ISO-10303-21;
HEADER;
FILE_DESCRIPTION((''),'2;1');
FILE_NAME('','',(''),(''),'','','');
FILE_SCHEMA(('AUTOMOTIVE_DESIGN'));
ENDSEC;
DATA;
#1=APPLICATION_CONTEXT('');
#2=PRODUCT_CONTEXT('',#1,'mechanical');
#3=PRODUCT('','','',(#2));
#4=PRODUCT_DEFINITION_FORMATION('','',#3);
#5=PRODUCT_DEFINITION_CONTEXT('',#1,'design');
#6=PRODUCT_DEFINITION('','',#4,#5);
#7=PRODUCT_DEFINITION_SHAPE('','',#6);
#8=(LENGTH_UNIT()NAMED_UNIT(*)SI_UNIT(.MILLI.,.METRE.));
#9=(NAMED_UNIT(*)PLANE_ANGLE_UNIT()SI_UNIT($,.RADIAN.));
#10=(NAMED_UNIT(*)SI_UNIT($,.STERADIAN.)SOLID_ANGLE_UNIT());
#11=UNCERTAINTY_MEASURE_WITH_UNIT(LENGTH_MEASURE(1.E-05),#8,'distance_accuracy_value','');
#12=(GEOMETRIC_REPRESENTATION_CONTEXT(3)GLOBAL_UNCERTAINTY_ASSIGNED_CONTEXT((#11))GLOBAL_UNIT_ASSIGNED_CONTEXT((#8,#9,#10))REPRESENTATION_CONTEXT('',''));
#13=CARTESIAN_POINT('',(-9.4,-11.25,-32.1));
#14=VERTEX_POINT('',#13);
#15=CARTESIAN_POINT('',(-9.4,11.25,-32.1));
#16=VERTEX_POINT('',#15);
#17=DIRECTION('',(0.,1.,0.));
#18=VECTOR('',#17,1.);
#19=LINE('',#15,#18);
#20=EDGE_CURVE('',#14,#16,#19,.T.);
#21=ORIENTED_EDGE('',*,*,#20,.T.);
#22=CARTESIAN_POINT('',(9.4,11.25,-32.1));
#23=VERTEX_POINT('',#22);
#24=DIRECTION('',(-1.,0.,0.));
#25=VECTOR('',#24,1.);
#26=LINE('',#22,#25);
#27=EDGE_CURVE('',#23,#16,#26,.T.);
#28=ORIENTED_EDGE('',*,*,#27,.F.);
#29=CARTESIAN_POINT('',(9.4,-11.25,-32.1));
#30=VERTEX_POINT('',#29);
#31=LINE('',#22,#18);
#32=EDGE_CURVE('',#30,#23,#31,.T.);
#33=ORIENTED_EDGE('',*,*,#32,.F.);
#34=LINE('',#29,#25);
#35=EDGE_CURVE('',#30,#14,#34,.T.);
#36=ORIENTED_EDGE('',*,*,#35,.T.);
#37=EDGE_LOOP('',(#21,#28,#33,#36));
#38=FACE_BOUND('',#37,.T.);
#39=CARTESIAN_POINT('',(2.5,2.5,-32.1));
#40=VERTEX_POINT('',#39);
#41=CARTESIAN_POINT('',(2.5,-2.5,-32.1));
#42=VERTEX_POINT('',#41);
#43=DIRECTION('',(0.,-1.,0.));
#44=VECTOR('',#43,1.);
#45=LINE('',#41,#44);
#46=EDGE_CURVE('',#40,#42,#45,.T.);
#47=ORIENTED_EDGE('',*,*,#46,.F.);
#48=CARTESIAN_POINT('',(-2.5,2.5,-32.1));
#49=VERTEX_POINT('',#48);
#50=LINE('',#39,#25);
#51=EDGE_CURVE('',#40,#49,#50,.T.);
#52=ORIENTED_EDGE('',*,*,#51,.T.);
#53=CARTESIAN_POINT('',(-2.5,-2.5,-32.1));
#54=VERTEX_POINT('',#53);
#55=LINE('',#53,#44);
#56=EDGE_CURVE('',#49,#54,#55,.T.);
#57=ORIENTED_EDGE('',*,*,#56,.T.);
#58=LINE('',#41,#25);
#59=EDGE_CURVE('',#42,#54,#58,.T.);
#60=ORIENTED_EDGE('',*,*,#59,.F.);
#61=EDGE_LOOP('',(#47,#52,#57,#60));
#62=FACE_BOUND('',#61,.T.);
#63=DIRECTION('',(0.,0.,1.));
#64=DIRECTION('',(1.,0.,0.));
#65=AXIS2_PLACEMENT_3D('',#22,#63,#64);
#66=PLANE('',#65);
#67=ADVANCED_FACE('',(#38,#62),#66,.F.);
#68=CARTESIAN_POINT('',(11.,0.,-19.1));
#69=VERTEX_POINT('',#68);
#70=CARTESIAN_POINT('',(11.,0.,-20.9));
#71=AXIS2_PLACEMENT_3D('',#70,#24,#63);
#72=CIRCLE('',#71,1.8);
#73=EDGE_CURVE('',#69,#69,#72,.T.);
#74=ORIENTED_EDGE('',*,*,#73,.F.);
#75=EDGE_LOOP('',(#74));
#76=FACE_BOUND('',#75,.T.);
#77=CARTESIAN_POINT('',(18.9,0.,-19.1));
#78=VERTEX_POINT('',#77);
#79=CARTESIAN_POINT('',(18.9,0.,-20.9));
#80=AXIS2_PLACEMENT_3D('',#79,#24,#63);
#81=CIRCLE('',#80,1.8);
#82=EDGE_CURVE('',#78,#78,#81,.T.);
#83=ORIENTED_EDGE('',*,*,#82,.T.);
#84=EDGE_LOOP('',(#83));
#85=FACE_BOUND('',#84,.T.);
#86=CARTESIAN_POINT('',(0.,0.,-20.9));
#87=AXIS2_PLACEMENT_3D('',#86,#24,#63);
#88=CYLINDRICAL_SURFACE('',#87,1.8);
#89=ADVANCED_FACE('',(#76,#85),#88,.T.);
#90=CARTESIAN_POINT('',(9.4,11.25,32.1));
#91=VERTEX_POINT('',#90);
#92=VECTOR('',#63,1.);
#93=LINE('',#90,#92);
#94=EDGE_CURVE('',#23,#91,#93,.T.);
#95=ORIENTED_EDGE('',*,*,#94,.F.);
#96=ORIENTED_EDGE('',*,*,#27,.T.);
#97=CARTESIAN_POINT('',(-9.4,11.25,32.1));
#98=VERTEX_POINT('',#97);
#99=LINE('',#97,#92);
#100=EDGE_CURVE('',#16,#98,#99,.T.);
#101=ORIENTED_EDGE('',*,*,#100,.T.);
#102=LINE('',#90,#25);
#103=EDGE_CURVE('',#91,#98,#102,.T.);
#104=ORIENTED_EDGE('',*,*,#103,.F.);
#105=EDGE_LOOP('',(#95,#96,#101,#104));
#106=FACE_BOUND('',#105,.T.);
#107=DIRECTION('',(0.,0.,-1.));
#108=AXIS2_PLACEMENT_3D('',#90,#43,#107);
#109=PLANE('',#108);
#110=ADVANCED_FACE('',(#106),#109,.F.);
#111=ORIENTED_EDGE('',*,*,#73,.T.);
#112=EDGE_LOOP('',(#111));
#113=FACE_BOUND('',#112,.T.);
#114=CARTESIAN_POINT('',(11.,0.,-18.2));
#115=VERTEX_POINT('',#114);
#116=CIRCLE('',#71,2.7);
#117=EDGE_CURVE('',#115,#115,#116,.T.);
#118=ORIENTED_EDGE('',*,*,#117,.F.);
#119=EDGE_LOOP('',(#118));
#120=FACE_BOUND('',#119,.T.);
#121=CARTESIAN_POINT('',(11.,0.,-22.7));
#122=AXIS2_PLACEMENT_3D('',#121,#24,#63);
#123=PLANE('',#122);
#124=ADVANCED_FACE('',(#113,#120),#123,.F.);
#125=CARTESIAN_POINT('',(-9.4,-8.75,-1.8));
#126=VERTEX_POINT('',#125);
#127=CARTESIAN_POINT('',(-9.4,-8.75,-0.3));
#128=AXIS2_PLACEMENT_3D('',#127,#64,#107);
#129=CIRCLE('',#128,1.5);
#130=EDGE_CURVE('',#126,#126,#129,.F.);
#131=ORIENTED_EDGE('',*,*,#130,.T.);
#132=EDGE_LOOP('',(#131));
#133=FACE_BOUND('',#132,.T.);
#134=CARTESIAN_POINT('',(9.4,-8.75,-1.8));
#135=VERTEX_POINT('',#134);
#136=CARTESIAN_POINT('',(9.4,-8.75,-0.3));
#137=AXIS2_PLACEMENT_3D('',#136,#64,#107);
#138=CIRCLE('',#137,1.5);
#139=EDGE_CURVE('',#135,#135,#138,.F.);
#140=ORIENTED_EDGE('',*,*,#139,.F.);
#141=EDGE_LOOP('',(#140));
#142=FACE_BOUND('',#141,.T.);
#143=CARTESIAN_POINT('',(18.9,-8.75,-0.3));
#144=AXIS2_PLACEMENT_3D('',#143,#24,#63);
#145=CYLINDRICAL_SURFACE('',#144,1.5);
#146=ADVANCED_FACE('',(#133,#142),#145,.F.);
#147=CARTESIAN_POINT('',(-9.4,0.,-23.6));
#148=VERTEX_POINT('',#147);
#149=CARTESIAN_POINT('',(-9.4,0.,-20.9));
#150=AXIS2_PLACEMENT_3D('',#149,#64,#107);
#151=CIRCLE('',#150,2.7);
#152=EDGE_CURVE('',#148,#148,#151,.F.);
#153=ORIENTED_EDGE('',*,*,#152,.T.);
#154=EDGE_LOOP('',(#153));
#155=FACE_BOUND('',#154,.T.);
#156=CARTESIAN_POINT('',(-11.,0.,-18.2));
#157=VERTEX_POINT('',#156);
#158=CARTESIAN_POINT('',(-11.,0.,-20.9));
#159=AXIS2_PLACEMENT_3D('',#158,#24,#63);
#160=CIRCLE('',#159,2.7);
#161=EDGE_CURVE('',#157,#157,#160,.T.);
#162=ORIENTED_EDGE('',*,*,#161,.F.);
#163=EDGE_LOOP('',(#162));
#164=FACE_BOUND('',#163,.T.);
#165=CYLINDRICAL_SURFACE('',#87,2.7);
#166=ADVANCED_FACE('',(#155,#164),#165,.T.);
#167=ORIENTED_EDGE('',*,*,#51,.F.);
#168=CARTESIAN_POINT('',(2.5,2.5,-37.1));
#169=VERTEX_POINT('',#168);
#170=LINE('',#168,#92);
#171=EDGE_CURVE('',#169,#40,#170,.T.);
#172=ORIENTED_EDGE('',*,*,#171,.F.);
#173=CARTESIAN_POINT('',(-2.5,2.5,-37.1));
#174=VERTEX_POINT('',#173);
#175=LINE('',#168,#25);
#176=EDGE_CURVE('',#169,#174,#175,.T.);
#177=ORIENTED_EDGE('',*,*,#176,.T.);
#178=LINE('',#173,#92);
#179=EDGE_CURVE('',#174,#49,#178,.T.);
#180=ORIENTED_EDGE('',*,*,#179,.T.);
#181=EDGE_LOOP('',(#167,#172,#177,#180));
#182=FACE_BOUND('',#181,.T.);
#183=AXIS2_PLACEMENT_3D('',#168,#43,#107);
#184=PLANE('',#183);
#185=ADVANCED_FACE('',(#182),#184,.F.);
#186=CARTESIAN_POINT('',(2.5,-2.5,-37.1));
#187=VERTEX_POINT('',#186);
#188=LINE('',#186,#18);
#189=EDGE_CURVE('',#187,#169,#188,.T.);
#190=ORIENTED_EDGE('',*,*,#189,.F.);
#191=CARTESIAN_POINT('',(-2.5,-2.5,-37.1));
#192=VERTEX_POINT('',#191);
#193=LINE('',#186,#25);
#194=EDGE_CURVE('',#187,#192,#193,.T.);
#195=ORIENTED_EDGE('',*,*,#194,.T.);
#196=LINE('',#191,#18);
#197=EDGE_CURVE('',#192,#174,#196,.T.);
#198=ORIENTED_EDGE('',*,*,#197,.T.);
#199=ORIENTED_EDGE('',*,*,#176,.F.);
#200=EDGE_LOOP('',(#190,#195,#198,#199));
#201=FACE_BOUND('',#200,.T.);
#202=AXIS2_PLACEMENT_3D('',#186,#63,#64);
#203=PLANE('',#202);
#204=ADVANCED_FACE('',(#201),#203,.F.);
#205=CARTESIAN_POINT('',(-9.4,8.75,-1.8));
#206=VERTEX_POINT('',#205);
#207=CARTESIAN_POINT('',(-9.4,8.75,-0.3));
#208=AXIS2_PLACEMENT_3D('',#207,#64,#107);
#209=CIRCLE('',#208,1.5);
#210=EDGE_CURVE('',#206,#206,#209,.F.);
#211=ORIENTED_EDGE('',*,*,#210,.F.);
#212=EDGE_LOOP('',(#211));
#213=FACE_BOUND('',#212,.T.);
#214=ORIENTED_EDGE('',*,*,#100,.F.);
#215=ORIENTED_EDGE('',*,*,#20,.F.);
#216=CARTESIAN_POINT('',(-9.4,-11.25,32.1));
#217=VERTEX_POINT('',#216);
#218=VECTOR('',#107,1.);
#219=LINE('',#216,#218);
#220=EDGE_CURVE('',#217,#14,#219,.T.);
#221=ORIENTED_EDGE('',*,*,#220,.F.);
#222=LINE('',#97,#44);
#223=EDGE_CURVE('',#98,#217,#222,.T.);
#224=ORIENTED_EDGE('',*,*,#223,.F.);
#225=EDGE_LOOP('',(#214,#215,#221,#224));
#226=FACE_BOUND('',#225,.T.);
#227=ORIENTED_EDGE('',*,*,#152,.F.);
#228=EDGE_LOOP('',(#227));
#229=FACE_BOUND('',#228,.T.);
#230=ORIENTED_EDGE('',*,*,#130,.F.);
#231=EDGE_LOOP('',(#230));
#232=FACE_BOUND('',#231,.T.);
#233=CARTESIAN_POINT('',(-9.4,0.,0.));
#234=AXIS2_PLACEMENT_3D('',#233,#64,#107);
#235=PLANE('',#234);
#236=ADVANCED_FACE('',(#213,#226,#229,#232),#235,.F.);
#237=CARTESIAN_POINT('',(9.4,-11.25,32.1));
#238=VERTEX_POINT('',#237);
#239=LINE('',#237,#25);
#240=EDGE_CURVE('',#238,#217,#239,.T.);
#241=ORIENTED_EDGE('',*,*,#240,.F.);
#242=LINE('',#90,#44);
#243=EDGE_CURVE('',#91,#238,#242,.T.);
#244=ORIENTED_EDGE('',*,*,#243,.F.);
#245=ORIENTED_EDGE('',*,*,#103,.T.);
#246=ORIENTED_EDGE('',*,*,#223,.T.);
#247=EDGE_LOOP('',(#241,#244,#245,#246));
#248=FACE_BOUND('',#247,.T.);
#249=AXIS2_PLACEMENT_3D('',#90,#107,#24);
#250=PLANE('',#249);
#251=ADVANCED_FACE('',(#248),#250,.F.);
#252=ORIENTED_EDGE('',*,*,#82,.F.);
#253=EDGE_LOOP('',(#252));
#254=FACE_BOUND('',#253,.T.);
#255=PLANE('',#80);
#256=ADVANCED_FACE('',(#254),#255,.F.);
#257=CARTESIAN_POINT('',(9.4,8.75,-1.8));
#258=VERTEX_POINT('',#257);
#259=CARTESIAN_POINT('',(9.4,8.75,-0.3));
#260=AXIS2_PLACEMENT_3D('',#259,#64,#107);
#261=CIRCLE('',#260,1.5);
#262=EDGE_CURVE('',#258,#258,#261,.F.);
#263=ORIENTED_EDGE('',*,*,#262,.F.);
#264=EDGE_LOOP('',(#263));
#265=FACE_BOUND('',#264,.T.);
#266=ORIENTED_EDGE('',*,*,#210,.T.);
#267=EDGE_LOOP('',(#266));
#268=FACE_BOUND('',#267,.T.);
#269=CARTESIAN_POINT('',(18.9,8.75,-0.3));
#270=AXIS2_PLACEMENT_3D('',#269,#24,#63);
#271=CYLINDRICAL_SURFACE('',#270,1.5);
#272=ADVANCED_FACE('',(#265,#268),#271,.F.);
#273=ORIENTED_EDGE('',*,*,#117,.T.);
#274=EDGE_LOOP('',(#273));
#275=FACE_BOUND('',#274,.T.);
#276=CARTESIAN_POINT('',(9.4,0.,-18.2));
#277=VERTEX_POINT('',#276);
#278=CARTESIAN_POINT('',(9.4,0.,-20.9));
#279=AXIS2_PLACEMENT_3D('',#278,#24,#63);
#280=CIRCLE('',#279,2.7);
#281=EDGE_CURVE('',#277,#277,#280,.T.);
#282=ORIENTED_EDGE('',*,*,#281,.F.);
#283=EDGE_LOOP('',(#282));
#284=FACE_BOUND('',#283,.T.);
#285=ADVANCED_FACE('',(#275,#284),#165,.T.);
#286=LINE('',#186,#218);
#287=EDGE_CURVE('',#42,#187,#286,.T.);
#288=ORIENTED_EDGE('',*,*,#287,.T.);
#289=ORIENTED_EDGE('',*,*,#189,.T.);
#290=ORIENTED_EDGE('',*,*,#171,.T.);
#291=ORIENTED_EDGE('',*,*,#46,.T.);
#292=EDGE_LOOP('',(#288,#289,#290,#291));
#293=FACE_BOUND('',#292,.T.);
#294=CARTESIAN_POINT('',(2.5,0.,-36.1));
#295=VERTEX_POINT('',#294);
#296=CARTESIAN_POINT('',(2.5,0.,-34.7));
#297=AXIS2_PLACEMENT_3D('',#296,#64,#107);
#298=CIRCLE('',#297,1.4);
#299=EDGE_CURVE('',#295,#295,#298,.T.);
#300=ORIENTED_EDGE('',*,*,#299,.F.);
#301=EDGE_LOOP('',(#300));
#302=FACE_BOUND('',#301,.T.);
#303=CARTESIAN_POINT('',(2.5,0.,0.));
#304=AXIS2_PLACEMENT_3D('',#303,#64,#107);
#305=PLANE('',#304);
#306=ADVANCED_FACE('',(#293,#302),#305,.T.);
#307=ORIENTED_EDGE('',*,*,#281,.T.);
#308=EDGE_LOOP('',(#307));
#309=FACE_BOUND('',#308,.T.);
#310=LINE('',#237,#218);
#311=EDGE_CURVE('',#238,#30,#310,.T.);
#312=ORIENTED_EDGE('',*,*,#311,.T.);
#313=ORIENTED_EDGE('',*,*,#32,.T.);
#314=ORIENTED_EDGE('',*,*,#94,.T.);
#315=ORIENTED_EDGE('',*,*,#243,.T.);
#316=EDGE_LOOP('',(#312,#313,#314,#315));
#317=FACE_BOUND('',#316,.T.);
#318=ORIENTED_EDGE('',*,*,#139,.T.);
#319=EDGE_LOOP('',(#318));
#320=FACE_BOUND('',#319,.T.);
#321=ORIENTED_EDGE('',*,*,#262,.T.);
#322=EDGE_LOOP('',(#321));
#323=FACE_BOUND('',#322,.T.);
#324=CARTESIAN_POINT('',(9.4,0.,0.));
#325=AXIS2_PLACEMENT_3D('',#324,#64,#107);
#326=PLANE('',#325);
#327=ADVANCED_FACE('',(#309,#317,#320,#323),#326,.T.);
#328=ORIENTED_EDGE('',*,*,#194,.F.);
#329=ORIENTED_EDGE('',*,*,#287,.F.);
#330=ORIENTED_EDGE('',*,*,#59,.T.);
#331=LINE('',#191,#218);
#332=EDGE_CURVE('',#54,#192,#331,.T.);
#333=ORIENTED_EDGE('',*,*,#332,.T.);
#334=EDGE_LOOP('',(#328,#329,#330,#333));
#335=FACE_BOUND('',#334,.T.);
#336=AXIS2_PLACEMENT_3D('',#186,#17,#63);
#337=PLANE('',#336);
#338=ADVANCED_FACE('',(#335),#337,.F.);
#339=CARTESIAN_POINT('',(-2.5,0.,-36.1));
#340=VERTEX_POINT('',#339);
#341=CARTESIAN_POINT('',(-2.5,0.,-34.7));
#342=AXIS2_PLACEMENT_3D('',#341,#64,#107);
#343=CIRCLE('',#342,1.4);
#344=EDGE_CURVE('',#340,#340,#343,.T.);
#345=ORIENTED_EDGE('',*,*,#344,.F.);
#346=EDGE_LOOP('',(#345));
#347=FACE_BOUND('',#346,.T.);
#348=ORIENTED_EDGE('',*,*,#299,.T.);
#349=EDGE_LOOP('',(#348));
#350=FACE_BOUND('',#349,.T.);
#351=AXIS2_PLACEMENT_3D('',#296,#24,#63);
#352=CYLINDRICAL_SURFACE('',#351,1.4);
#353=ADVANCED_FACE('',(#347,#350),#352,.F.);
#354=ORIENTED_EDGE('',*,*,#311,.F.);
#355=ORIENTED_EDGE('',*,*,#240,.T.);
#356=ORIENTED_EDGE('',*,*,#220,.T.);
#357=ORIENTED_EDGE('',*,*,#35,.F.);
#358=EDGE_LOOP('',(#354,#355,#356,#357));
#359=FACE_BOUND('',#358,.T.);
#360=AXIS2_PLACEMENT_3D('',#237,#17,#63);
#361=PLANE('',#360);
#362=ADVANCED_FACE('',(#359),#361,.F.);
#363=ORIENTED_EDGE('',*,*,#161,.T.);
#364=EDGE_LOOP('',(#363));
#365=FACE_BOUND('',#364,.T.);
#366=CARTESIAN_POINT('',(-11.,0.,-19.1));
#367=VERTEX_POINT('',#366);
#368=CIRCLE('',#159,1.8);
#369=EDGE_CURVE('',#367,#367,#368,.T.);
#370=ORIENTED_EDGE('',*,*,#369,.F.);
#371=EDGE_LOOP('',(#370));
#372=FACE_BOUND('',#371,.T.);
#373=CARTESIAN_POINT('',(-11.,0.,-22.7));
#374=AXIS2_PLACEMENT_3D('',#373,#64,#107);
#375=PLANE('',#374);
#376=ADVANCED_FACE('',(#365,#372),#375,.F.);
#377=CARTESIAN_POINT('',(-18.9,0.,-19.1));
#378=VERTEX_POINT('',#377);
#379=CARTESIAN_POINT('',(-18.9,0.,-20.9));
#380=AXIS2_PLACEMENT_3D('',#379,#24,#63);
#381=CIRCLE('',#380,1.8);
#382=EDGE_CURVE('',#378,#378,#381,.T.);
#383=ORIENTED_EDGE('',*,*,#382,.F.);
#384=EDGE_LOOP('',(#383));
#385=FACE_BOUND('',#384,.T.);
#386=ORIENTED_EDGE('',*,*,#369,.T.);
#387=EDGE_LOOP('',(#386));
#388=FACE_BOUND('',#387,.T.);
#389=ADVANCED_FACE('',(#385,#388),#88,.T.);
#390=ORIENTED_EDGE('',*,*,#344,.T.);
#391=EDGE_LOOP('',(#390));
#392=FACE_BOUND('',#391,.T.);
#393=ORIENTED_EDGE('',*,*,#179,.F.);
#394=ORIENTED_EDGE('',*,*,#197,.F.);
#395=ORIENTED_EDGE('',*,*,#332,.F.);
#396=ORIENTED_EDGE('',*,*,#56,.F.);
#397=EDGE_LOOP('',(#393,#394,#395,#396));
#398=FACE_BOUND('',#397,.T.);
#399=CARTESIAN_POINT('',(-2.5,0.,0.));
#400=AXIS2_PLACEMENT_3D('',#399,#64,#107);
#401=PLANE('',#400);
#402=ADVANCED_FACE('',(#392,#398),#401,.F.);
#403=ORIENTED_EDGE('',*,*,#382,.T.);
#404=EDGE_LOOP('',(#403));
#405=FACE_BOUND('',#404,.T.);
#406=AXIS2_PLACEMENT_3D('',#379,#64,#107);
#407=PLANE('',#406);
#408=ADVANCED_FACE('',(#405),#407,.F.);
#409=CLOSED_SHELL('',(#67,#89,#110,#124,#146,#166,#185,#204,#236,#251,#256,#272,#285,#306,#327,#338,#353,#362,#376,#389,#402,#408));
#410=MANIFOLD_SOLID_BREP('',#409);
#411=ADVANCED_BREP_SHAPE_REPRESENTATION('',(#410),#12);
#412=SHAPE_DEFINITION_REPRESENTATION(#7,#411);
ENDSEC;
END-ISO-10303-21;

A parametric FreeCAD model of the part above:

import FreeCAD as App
import Part
import Sketcher
from FreeCAD import Vector


def add_polygon(sketch, points):
    """Adds a closed chain of lines whose ends are joined by coincident constraints."""
    first, n = sketch.GeometryCount, len(points)
    for a, b in zip(points, points[1:] + points[:1]):
        sketch.addGeometry(Part.LineSegment(App.Vector(*a, 0), App.Vector(*b, 0)), False)
    for i in range(n):
        sketch.addConstraint(Sketcher.Constraint("Coincident", first + i, 2, first + (i + 1) % n, 1))

doc = App.newDocument("Part")
body = doc.addObject("PartDesign::Body", "Body")

sketch1 = body.newObject("Sketcher::SketchObject", "Sketch")
sketch1.AttachmentSupport = (doc.getObject("YZ_Plane"), [""])
sketch1.MapMode = "FlatFace"
add_polygon(sketch1, [(11, 32), (-11, 32), (-11, -32), (11, -32)])
sketch1.addConstraint([
    Sketcher.Constraint("Horizontal", 0),
    Sketcher.Constraint("Vertical", 1),
    Sketcher.Constraint("Horizontal", 2),
    Sketcher.Constraint("Vertical", 3),
    Sketcher.Constraint("Symmetric", 0, 2, 2, 2, -1, 1),
    Sketcher.Constraint("DistanceX", 0, 2, 0, 1, 22.5),
    Sketcher.Constraint("DistanceY", 1, 2, 1, 1, 64.2),
])
pad1 = body.newObject("PartDesign::Pad", "Pad")
pad1.Profile = sketch1
pad1.Length = 18.8
pad1.Midplane = True

sketch2 = body.newObject("Sketcher::SketchObject", "Sketch001")
sketch2.AttachmentSupport = (doc.getObject("XZ_Plane"), [""])
sketch2.MapMode = "FlatFace"
add_polygon(sketch2, [(18.9, -20.9), (18.9, -22.7), (11, -22.7), (11, -23.6), (9.4, -23.6), (9.4, -20.9)])
add_polygon(sketch2, [(-9.4, -20.9), (-9.4, -23.6), (-11, -23.6), (-11, -22.7), (-18.9, -22.7), (-18.9, -20.9)])
sketch2.addGeometry(Part.LineSegment(Vector(-18.9, -20.9, 0), Vector(18.9, -20.9, 0)), True)
sketch2.addConstraint([
    Sketcher.Constraint("Vertical", 0),
    Sketcher.Constraint("Horizontal", 1),
    Sketcher.Constraint("Vertical", 2),
    Sketcher.Constraint("Horizontal", 3),
    Sketcher.Constraint("Vertical", 4),
    Sketcher.Constraint("Horizontal", 5),
    Sketcher.Constraint("Vertical", 6),
    Sketcher.Constraint("Horizontal", 7),
    Sketcher.Constraint("Vertical", 8),
    Sketcher.Constraint("Horizontal", 9),
    Sketcher.Constraint("Vertical", 10),
    Sketcher.Constraint("Horizontal", 11),
    Sketcher.Constraint("Horizontal", 12),
    Sketcher.Constraint("Coincident", 12, 1, 10, 2),
    Sketcher.Constraint("Coincident", 12, 2, 5, 2),
    Sketcher.Constraint("Symmetric", 3, 2, 6, 2, -2),
    Sketcher.Constraint("Symmetric", 1, 2, 8, 2, -2),
    Sketcher.Constraint("Equal", 1, 9),
    Sketcher.Constraint("DistanceX", 1, 2, 1, 1, 7.9),
    Sketcher.Constraint("DistanceX", 3, 2, 3, 1, 1.6),
    Sketcher.Constraint("DistanceX", 12, 1, 12, 2, 37.8),
    Sketcher.Constraint("DistanceY", 0, 2, 0, 1, 1.8),
    Sketcher.Constraint("DistanceY", 2, 2, 2, 1, 0.9),
    Sketcher.Constraint("DistanceY", 0, 2, -1, 1, 22.7),
])
revolution = body.newObject("PartDesign::Revolution", "Revolution")
revolution.Profile = sketch2
revolution.ReferenceAxis = (sketch2, ["Axis0"])
revolution.Angle = 360

sketch3 = body.newObject("Sketcher::SketchObject", "Sketch002")
sketch3.AttachmentSupport = (doc.getObject("YZ_Plane"), [""])
sketch3.MapMode = "FlatFace"
add_polygon(sketch3, [(2.5, -32.1), (-2.5, -32.1), (-2.5, -37.1), (2.5, -37.1)])
sketch3.addGeometry(Part.Circle(Vector(0, -34.7, 0), Vector(0, 0, 1), 1.4), False)
sketch3.addConstraint([
    Sketcher.Constraint("Horizontal", 0),
    Sketcher.Constraint("Vertical", 1),
    Sketcher.Constraint("Horizontal", 2),
    Sketcher.Constraint("Vertical", 3),
    Sketcher.Constraint("PointOnObject", 4, 3, -2),
    Sketcher.Constraint("Equal", 2, 1),
    Sketcher.Constraint("Diameter", 4, 2.8),
    Sketcher.Constraint("DistanceX", 0, 2, 0, 1, 5.0),
    Sketcher.Constraint("DistanceY", 4, 3, -1, 1, 34.7),
    Sketcher.Constraint("DistanceX", 0, 2, -1, 1, 2.5),
    Sketcher.Constraint("DistanceY", 0, 2, -1, 1, 32.1),
])
pad2 = body.newObject("PartDesign::Pad", "Pad001")
pad2.Profile = sketch3
pad2.Length = 5
pad2.Midplane = True

sketch4 = body.newObject("Sketcher::SketchObject", "Sketch003")
sketch4.AttachmentSupport = (doc.getObject("YZ_Plane"), [""])
sketch4.MapMode = "FlatFace"
sketch4.addGeometry([
    Part.Circle(Vector(8.8, -0.3, 0), Vector(0, 0, 1), 1.5),
    Part.Circle(Vector(-8.8, -0.3, 0), Vector(0, 0, 1), 1.5),
], False)
sketch4.addConstraint([
    Sketcher.Constraint("Equal", 0, 1),
    Sketcher.Constraint("Symmetric", 0, 3, 1, 3, -2),
    Sketcher.Constraint("Diameter", 0, 3.0),
    Sketcher.Constraint("DistanceY", 0, 3, -1, 1, 0.3),
    Sketcher.Constraint("DistanceX", 1, 3, 0, 3, 17.5),
])
pocket1 = body.newObject("PartDesign::Pocket", "Pocket")
pocket1.Profile = sketch4
pocket1.Type = "ThroughAll"
pocket1.Midplane = True

doc.recompute()
